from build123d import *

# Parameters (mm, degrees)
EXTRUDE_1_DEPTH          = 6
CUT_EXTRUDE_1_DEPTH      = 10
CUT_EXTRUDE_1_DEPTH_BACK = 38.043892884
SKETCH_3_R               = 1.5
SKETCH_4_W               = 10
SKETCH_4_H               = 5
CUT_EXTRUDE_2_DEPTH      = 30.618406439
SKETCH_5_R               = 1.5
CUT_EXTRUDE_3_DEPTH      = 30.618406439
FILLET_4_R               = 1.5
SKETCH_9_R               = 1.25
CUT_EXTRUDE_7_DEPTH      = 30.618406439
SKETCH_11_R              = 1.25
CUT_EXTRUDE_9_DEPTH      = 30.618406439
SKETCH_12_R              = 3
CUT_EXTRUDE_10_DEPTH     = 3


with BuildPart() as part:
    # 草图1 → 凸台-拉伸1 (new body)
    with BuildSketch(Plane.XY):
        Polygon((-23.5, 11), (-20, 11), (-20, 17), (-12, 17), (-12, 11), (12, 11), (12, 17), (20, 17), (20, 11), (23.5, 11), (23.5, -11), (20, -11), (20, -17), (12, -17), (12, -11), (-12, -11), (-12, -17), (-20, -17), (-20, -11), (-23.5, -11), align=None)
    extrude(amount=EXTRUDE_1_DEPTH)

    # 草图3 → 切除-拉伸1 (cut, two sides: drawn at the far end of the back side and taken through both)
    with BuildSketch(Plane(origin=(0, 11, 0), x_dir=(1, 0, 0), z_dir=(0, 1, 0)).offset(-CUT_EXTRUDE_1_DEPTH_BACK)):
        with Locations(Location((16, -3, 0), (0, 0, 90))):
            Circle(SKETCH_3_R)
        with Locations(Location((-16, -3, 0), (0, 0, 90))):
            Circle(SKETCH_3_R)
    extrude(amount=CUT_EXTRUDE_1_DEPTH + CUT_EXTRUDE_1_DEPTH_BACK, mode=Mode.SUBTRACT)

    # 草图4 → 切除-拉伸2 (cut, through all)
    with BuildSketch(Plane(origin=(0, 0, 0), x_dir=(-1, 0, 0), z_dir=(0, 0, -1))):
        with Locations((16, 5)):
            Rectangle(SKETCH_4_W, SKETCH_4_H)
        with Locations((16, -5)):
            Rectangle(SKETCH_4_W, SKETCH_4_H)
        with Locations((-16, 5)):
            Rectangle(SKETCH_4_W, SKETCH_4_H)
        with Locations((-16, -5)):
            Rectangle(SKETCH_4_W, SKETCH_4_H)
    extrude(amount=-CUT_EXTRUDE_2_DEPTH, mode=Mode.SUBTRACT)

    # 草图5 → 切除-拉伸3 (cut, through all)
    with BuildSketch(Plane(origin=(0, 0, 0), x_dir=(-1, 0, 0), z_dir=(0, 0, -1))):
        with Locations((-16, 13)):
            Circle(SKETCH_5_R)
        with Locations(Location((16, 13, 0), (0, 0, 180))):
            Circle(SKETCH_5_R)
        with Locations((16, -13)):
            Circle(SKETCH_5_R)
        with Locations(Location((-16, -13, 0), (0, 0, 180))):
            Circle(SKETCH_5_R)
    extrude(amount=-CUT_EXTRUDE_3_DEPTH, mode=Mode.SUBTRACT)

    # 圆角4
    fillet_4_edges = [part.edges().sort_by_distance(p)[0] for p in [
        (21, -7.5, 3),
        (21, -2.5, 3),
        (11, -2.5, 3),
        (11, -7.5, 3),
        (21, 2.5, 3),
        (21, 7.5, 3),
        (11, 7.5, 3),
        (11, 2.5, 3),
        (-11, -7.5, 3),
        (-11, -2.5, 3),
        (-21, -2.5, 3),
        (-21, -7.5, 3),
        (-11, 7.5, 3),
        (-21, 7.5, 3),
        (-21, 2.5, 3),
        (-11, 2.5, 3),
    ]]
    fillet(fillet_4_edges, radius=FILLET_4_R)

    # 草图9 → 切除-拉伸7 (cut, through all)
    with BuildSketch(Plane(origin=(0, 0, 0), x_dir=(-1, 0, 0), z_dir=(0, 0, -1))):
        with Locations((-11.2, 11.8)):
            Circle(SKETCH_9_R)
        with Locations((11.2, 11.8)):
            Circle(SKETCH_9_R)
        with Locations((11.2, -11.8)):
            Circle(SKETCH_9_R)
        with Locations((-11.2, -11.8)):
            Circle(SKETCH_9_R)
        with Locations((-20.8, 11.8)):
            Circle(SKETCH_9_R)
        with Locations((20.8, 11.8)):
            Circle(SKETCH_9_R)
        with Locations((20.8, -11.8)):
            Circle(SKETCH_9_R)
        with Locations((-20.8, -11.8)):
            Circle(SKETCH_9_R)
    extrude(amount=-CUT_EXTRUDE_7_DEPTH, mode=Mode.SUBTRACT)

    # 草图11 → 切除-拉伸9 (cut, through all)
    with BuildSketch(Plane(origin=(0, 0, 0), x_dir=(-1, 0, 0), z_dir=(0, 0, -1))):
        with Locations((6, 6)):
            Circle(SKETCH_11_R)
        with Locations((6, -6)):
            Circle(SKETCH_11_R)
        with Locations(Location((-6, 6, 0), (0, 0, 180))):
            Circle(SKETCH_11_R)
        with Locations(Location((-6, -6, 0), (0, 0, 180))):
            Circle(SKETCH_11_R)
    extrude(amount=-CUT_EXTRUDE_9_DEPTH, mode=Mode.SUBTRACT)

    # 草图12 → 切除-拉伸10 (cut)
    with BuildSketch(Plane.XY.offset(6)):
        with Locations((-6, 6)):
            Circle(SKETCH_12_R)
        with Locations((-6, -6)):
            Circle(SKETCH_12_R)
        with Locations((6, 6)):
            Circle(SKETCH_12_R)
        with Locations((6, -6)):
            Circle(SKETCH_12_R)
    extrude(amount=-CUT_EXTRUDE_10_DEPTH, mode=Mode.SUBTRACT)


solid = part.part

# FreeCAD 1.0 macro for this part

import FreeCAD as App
import Part
import Sketcher
Q = App.Units.Quantity


def edges_at(feature, points):
    """Names of the edges that pass closest to the given points."""
    edges = feature.Shape.Edges
    near = lambda p: min(range(len(edges)), key=lambda i: edges[i].distToShape(Part.Vertex(*p))[0])
    return sorted({f"Edge{near(p) + 1}" for p in points})

doc = App.newDocument("Part")
body = doc.addObject("PartDesign::Body", "Body")

sketch1 = body.newObject("Sketcher::SketchObject", "Sketch")
sketch1.AttachmentSupport = (doc.getObject("XY_Plane"), [""])
sketch1.MapMode = "FlatFace"
sketch1.addGeometry([
    Part.LineSegment(App.Vector(-20, 11, 0), App.Vector(-23.5, 11, 0)),
    Part.LineSegment(App.Vector(-23.5, 11, 0), App.Vector(-23.5, -11, 0)),
    Part.LineSegment(App.Vector(-23.5, -11, 0), App.Vector(-20, -11, 0)),
    Part.LineSegment(App.Vector(-20, -11, 0), App.Vector(-20, -17, 0)),
    Part.LineSegment(App.Vector(-20, -17, 0), App.Vector(-12, -17, 0)),
    Part.LineSegment(App.Vector(-12, -17, 0), App.Vector(-12, -11, 0)),
    Part.LineSegment(App.Vector(-12, -11, 0), App.Vector(12, -11, 0)),
    Part.LineSegment(App.Vector(12, -11, 0), App.Vector(12, -17, 0)),
    Part.LineSegment(App.Vector(12, -17, 0), App.Vector(20, -17, 0)),
    Part.LineSegment(App.Vector(20, -17, 0), App.Vector(20, -11, 0)),
    Part.LineSegment(App.Vector(20, -11, 0), App.Vector(23.5, -11, 0)),
    Part.LineSegment(App.Vector(23.5, -11, 0), App.Vector(23.5, 11, 0)),
    Part.LineSegment(App.Vector(23.5, 11, 0), App.Vector(20, 11, 0)),
    Part.LineSegment(App.Vector(20, 11, 0), App.Vector(20, 17, 0)),
    Part.LineSegment(App.Vector(20, 17, 0), App.Vector(12, 17, 0)),
    Part.LineSegment(App.Vector(12, 17, 0), App.Vector(12, 11, 0)),
    Part.LineSegment(App.Vector(12, 11, 0), App.Vector(-12, 11, 0)),
    Part.LineSegment(App.Vector(-12, 11, 0), App.Vector(-12, 17, 0)),
    Part.LineSegment(App.Vector(-12, 17, 0), App.Vector(-20, 17, 0)),
    Part.LineSegment(App.Vector(-20, 17, 0), App.Vector(-20, 11, 0)),
], False)
sketch1.addConstraint([
    Sketcher.Constraint("Coincident", 0, 2, 1, 1),
    Sketcher.Constraint("Coincident", 1, 2, 2, 1),
    Sketcher.Constraint("Coincident", 2, 2, 3, 1),
    Sketcher.Constraint("Coincident", 3, 2, 4, 1),
    Sketcher.Constraint("Coincident", 4, 2, 5, 1),
    Sketcher.Constraint("Coincident", 5, 2, 6, 1),
    Sketcher.Constraint("Coincident", 6, 2, 7, 1),
    Sketcher.Constraint("Coincident", 7, 2, 8, 1),
    Sketcher.Constraint("Coincident", 8, 2, 9, 1),
    Sketcher.Constraint("Coincident", 9, 2, 10, 1),
    Sketcher.Constraint("Coincident", 10, 2, 11, 1),
    Sketcher.Constraint("Coincident", 11, 2, 12, 1),
    Sketcher.Constraint("Coincident", 12, 2, 13, 1),
    Sketcher.Constraint("Coincident", 13, 2, 14, 1),
    Sketcher.Constraint("Coincident", 14, 2, 15, 1),
    Sketcher.Constraint("Coincident", 15, 2, 16, 1),
    Sketcher.Constraint("Coincident", 16, 2, 17, 1),
    Sketcher.Constraint("Coincident", 17, 2, 18, 1),
    Sketcher.Constraint("Coincident", 18, 2, 19, 1),
    Sketcher.Constraint("Coincident", 19, 2, 0, 1),
    Sketcher.Constraint("Horizontal", 0),
    Sketcher.Constraint("Vertical", 1),
    Sketcher.Constraint("Horizontal", 2),
    Sketcher.Constraint("Vertical", 3),
    Sketcher.Constraint("Horizontal", 4),
    Sketcher.Constraint("Vertical", 5),
    Sketcher.Constraint("Horizontal", 6),
    Sketcher.Constraint("Vertical", 7),
    Sketcher.Constraint("Horizontal", 8),
    Sketcher.Constraint("Vertical", 9),
    Sketcher.Constraint("Horizontal", 10),
    Sketcher.Constraint("Vertical", 11),
    Sketcher.Constraint("Horizontal", 12),
    Sketcher.Constraint("Vertical", 13),
    Sketcher.Constraint("Horizontal", 14),
    Sketcher.Constraint("Vertical", 15),
    Sketcher.Constraint("Horizontal", 16),
    Sketcher.Constraint("Vertical", 17),
    Sketcher.Constraint("Horizontal", 18),
    Sketcher.Constraint("Vertical", 19),
    Sketcher.Constraint("Symmetric", 0, 2, 10, 2, -1, 1),
    Sketcher.Constraint("Symmetric", 2, 2, 12, 2, -1, 1),
    Sketcher.Constraint("Symmetric", 4, 2, 14, 2, -1, 1),
    Sketcher.Constraint("Symmetric", 6, 2, 16, 2, -1, 1),
    Sketcher.Constraint("Symmetric", 8, 2, 18, 2, -1, 1),
    Sketcher.Constraint("Symmetric", 4, 2, 7, 2, -2),
    Sketcher.Constraint("Symmetric", 2, 2, 9, 2, -2),
    Sketcher.Constraint("Horizontal", 2, 2, 5, 2),
    Sketcher.Constraint("DistanceX", 4, 1, 4, 2, Q("8 mm")),
    Sketcher.Constraint("DistanceX", 6, 1, 6, 2, Q("24 mm")),
    Sketcher.Constraint("DistanceY", 1, 2, 1, 1, Q("22 mm")),
    Sketcher.Constraint("DistanceY", 3, 2, 3, 1, Q("6 mm")),
    Sketcher.Constraint("DistanceX", 0, 2, 0, 1, Q("3.5 mm")),
])
pad1 = body.newObject("PartDesign::Pad", "Pad")
pad1.Profile = sketch1
pad1.Length = 6

sketch2 = body.newObject("Sketcher::SketchObject", "Sketch001")
sketch2.AttachmentSupport = (doc.getObject("XZ_Plane"), [""])
sketch2.MapMode = "FlatFace"
sketch2.AttachmentOffset = App.Placement(App.Vector(0, 0, -11), App.Rotation())
sketch2.addGeometry([
    Part.Circle(App.Vector(16, 3, 0), App.Vector(0, 0, 1), 1.5),
    Part.Circle(App.Vector(-16, 3, 0), App.Vector(0, 0, 1), 1.5),
], False)
sketch2.addConstraint([
    Sketcher.Constraint("Equal", 0, 1),
    Sketcher.Constraint("Symmetric", 0, 3, 1, 3, -2),
    Sketcher.Constraint("Diameter", 0, Q("3 mm")),
    Sketcher.Constraint("DistanceX", -1, 1, 0, 3, Q("16 mm")),
    Sketcher.Constraint("DistanceY", -1, 1, 0, 3, Q("3 mm")),
])
pocket1 = body.newObject("PartDesign::Pocket", "Pocket")
pocket1.Profile = sketch2
pocket1.Type = "ThroughAll"
pocket1.Midplane = True

sketch3 = body.newObject("Sketcher::SketchObject", "Sketch002")
sketch3.AttachmentSupport = (doc.getObject("XY_Plane"), [""])
sketch3.MapMode = "FlatFace"
sketch3.addGeometry([
    Part.LineSegment(App.Vector(-11, 8, 0), App.Vector(-11, 2, 0)),
    Part.LineSegment(App.Vector(-11, 2, 0), App.Vector(-21, 2, 0)),
    Part.LineSegment(App.Vector(-21, 2, 0), App.Vector(-21, 8, 0)),
    Part.LineSegment(App.Vector(-21, 8, 0), App.Vector(-11, 8, 0)),
    Part.LineSegment(App.Vector(-11, -2, 0), App.Vector(-11, -8, 0)),
    Part.LineSegment(App.Vector(-11, -8, 0), App.Vector(-21, -8, 0)),
    Part.LineSegment(App.Vector(-21, -8, 0), App.Vector(-21, -2, 0)),
    Part.LineSegment(App.Vector(-21, -2, 0), App.Vector(-11, -2, 0)),
    Part.LineSegment(App.Vector(21, 8, 0), App.Vector(21, 2, 0)),
    Part.LineSegment(App.Vector(21, 2, 0), App.Vector(11, 2, 0)),
    Part.LineSegment(App.Vector(11, 2, 0), App.Vector(11, 8, 0)),
    Part.LineSegment(App.Vector(11, 8, 0), App.Vector(21, 8, 0)),
    Part.LineSegment(App.Vector(21, -2, 0), App.Vector(21, -8, 0)),
    Part.LineSegment(App.Vector(21, -8, 0), App.Vector(11, -8, 0)),
    Part.LineSegment(App.Vector(11, -8, 0), App.Vector(11, -2, 0)),
    Part.LineSegment(App.Vector(11, -2, 0), App.Vector(21, -2, 0)),
], False)
sketch3.addConstraint([
    Sketcher.Constraint("Coincident", 0, 2, 1, 1),
    Sketcher.Constraint("Coincident", 1, 2, 2, 1),
    Sketcher.Constraint("Coincident", 2, 2, 3, 1),
    Sketcher.Constraint("Coincident", 3, 2, 0, 1),
    Sketcher.Constraint("Coincident", 4, 2, 5, 1),
    Sketcher.Constraint("Coincident", 5, 2, 6, 1),
    Sketcher.Constraint("Coincident", 6, 2, 7, 1),
    Sketcher.Constraint("Coincident", 7, 2, 4, 1),
    Sketcher.Constraint("Coincident", 8, 2, 9, 1),
    Sketcher.Constraint("Coincident", 9, 2, 10, 1),
    Sketcher.Constraint("Coincident", 10, 2, 11, 1),
    Sketcher.Constraint("Coincident", 11, 2, 8, 1),
    Sketcher.Constraint("Coincident", 12, 2, 13, 1),
    Sketcher.Constraint("Coincident", 13, 2, 14, 1),
    Sketcher.Constraint("Coincident", 14, 2, 15, 1),
    Sketcher.Constraint("Coincident", 15, 2, 12, 1),
    Sketcher.Constraint("Vertical", 0),
    Sketcher.Constraint("Horizontal", 1),
    Sketcher.Constraint("Vertical", 2),
    Sketcher.Constraint("Horizontal", 3),
    Sketcher.Constraint("Vertical", 4),
    Sketcher.Constraint("Horizontal", 5),
    Sketcher.Constraint("Vertical", 6),
    Sketcher.Constraint("Horizontal", 7),
    Sketcher.Constraint("Vertical", 8),
    Sketcher.Constraint("Horizontal", 9),
    Sketcher.Constraint("Vertical", 10),
    Sketcher.Constraint("Horizontal", 11),
    Sketcher.Constraint("Vertical", 12),
    Sketcher.Constraint("Horizontal", 13),
    Sketcher.Constraint("Vertical", 14),
    Sketcher.Constraint("Horizontal", 15),
    Sketcher.Constraint("Symmetric", 6, 2, 8, 2, -1, 1),
    Sketcher.Constraint("Symmetric", 4, 2, 10, 2, -1, 1),
    Sketcher.Constraint("Symmetric", 2, 2, 12, 2, -1, 1),
    Sketcher.Constraint("Symmetric", 0, 2, 14, 2, -1, 1),
    Sketcher.Constraint("Symmetric", 1, 2, 8, 2, -2),
    Sketcher.Constraint("Symmetric", 3, 2, 10, 2, -2),
    Sketcher.Constraint("DistanceX", 1, 2, 1, 1, Q("10 mm")),
    Sketcher.Constraint("DistanceY", 0, 2, 0, 1, Q("5 mm")),
    Sketcher.Constraint("DistanceX", 0, 2, -1, 1, Q("11 mm")),
    Sketcher.Constraint("DistanceY", 4, 2, 0, 2, Q("10 mm")),
])
pocket2 = body.newObject("PartDesign::Pocket", "Pocket001")
pocket2.Profile = sketch3
pocket2.Type = "ThroughAll"
pocket2.Reversed = True

sketch4 = body.newObject("Sketcher::SketchObject", "Sketch003")
sketch4.AttachmentSupport = (doc.getObject("XY_Plane"), [""])
sketch4.MapMode = "FlatFace"
sketch4.addGeometry([
    Part.Circle(App.Vector(16, 13, 0), App.Vector(0, 0, 1), 1.5),
    Part.Circle(App.Vector(-16, 13, 0), App.Vector(0, 0, 1), 1.5),
    Part.Circle(App.Vector(-16, -13, 0), App.Vector(0, 0, 1), 1.5),
    Part.Circle(App.Vector(16, -13, 0), App.Vector(0, 0, 1), 1.5),
], False)
sketch4.addConstraint([
    Sketcher.Constraint("Equal", 0, 1),
    Sketcher.Constraint("Equal", 1, 2),
    Sketcher.Constraint("Equal", 2, 3),
    Sketcher.Constraint("Symmetric", 0, 3, 2, 3, -1, 1),
    Sketcher.Constraint("Symmetric", 1, 3, 3, 3, -1, 1),
    Sketcher.Constraint("Symmetric", 0, 3, 1, 3, -2),
    Sketcher.Constraint("Diameter", 0, Q("3 mm")),
    Sketcher.Constraint("DistanceX", -1, 1, 0, 3, Q("16 mm")),
    Sketcher.Constraint("DistanceY", -1, 1, 0, 3, Q("13 mm")),
])
pocket3 = body.newObject("PartDesign::Pocket", "Pocket002")
pocket3.Profile = sketch4
pocket3.Type = "ThroughAll"
pocket3.Reversed = True
doc.recompute()

fillet = body.newObject("PartDesign::Fillet", "Fillet")
fillet.Base = (pocket3, edges_at(pocket3, [
    (21, -7.5, 3),
    (21, -2.5, 3),
    (11, -2.5, 3),
    (11, -7.5, 3),
    (21, 2.5, 3),
    (21, 7.5, 3),
    (11, 7.5, 3),
    (11, 2.5, 3),
    (-11, -7.5, 3),
    (-11, -2.5, 3),
    (-21, -2.5, 3),
    (-21, -7.5, 3),
    (-11, 7.5, 3),
    (-21, 7.5, 3),
    (-21, 2.5, 3),
    (-11, 2.5, 3),
]))
fillet.Radius = 1.5

sketch5 = body.newObject("Sketcher::SketchObject", "Sketch004")
sketch5.AttachmentSupport = (doc.getObject("XY_Plane"), [""])
sketch5.MapMode = "FlatFace"
sketch5.addGeometry([
    Part.Circle(App.Vector(11.2, 11.8, 0), App.Vector(0, 0, 1), 1.2),
    Part.Circle(App.Vector(-11.2, 11.8, 0), App.Vector(0, 0, 1), 1.2),
    Part.Circle(App.Vector(-11.2, -11.8, 0), App.Vector(0, 0, 1), 1.2),
    Part.Circle(App.Vector(11.2, -11.8, 0), App.Vector(0, 0, 1), 1.2),
    Part.Circle(App.Vector(20.8, 11.8, 0), App.Vector(0, 0, 1), 1.2),
    Part.Circle(App.Vector(-20.8, 11.8, 0), App.Vector(0, 0, 1), 1.2),
    Part.Circle(App.Vector(-20.8, -11.8, 0), App.Vector(0, 0, 1), 1.2),
    Part.Circle(App.Vector(20.8, -11.8, 0), App.Vector(0, 0, 1), 1.2),
], False)
sketch5.addConstraint([
    Sketcher.Constraint("Equal", 0, 1),
    Sketcher.Constraint("Equal", 1, 2),
    Sketcher.Constraint("Equal", 2, 3),
    Sketcher.Constraint("Equal", 3, 4),
    Sketcher.Constraint("Equal", 4, 5),
    Sketcher.Constraint("Equal", 5, 6),
    Sketcher.Constraint("Equal", 6, 7),
    Sketcher.Constraint("Symmetric", 0, 3, 2, 3, -1, 1),
    Sketcher.Constraint("Symmetric", 1, 3, 3, 3, -1, 1),
    Sketcher.Constraint("Symmetric", 4, 3, 6, 3, -1, 1),
    Sketcher.Constraint("Symmetric", 5, 3, 7, 3, -1, 1),
    Sketcher.Constraint("Symmetric", 0, 3, 1, 3, -2),
    Sketcher.Constraint("Symmetric", 4, 3, 5, 3, -2),
    Sketcher.Constraint("Horizontal", 1, 3, 4, 3),
    Sketcher.Constraint("Diameter", 0, Q("2.5 mm")),
    Sketcher.Constraint("DistanceX", 1, 3, 4, 3, Q("32 mm")),
    Sketcher.Constraint("DistanceX", -1, 1, 0, 3, Q("11.2 mm")),
    Sketcher.Constraint("DistanceY", -1, 1, 0, 3, Q("11.8 mm")),
])
pocket4 = body.newObject("PartDesign::Pocket", "Pocket003")
pocket4.Profile = sketch5
pocket4.Type = "ThroughAll"
pocket4.Reversed = True

sketch6 = body.newObject("Sketcher::SketchObject", "Sketch005")
sketch6.AttachmentSupport = (doc.getObject("XY_Plane"), [""])
sketch6.MapMode = "FlatFace"
sketch6.addGeometry([
    Part.Circle(App.Vector(-6, 6, 0), App.Vector(0, 0, 1), 1.2),
    Part.Circle(App.Vector(-6, -6, 0), App.Vector(0, 0, 1), 1.2),
    Part.Circle(App.Vector(6, 6, 0), App.Vector(0, 0, 1), 1.2),
    Part.Circle(App.Vector(6, -6, 0), App.Vector(0, 0, 1), 1.2),
], False)
sketch6.addConstraint([
    Sketcher.Constraint("Equal", 0, 1),
    Sketcher.Constraint("Equal", 1, 2),
    Sketcher.Constraint("Equal", 2, 3),
    Sketcher.Constraint("Symmetric", 1, 3, 2, 3, -1, 1),
    Sketcher.Constraint("Symmetric", 0, 3, 3, 3, -1, 1),
    Sketcher.Constraint("Symmetric", 0, 3, 2, 3, -2),
    Sketcher.Constraint("Diameter", 0, Q("2.5 mm")),
    Sketcher.Constraint("DistanceX", 0, 3, -1, 1, Q("6 mm")),
    Sketcher.Constraint("DistanceY", -1, 1, 0, 3, Q("6 mm")),
])
pocket5 = body.newObject("PartDesign::Pocket", "Pocket004")
pocket5.Profile = sketch6
pocket5.Type = "ThroughAll"
pocket5.Reversed = True

sketch7 = body.newObject("Sketcher::SketchObject", "Sketch006")
sketch7.AttachmentSupport = (doc.getObject("XY_Plane"), [""])
sketch7.MapMode = "FlatFace"
sketch7.AttachmentOffset = App.Placement(App.Vector(0, 0, 6), App.Rotation())
sketch7.addGeometry([
    Part.Circle(App.Vector(-6, 6, 0), App.Vector(0, 0, 1), 3),
    Part.Circle(App.Vector(-6, -6, 0), App.Vector(0, 0, 1), 3),
    Part.Circle(App.Vector(6, 6, 0), App.Vector(0, 0, 1), 3),
    Part.Circle(App.Vector(6, -6, 0), App.Vector(0, 0, 1), 3),
], False)
sketch7.addConstraint([
    Sketcher.Constraint("Equal", 0, 1),
    Sketcher.Constraint("Equal", 1, 2),
    Sketcher.Constraint("Equal", 2, 3),
    Sketcher.Constraint("Symmetric", 1, 3, 2, 3, -1, 1),
    Sketcher.Constraint("Symmetric", 0, 3, 3, 3, -1, 1),
    Sketcher.Constraint("Symmetric", 0, 3, 2, 3, -2),
    Sketcher.Constraint("Diameter", 0, Q("6 mm")),
    Sketcher.Constraint("DistanceX", 0, 3, -1, 1, Q("6 mm")),
    Sketcher.Constraint("DistanceY", -1, 1, 0, 3, Q("6 mm")),
])
pocket6 = body.newObject("PartDesign::Pocket", "Pocket005")
pocket6.Profile = sketch7
pocket6.Length = 3

doc.recompute()
